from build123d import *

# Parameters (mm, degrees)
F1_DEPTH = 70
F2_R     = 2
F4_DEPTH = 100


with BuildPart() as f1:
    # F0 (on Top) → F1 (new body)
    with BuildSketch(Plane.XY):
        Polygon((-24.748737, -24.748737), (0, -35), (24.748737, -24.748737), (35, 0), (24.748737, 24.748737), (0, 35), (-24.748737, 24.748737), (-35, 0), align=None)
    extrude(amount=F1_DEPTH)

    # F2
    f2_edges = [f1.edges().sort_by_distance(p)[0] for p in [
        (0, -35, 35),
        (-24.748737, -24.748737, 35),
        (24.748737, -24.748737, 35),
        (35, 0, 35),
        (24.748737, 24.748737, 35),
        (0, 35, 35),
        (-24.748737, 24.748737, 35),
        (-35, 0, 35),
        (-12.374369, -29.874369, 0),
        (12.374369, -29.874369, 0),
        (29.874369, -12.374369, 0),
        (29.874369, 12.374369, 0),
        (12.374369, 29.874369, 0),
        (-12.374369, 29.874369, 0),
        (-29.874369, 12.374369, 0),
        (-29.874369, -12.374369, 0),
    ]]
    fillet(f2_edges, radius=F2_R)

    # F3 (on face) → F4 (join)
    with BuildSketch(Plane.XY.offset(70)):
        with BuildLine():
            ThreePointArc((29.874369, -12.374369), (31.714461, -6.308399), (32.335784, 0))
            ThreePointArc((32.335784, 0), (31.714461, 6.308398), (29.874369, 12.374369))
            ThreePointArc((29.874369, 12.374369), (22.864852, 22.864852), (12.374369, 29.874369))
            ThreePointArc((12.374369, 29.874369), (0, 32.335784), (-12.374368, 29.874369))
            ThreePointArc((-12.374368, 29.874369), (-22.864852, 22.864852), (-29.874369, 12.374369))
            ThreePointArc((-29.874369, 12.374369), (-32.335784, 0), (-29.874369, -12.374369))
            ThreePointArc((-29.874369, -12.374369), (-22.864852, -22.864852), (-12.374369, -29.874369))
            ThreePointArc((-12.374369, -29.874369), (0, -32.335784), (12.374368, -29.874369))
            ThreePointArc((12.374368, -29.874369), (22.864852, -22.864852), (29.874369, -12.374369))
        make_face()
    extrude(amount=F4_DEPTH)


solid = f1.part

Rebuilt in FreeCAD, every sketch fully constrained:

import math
import FreeCAD as App
import Part
import Sketcher
Q = App.Units.Quantity


def edges_at(feature, points):
    """Names of the edges that pass closest to the given points."""
    edges = feature.Shape.Edges
    near = lambda p: min(range(len(edges)), key=lambda i: edges[i].distToShape(Part.Vertex(*p))[0])
    return sorted({f"Edge{near(p) + 1}" for p in points})


def add_polygon(sketch, points):
    """Adds a closed chain of lines whose ends are joined by coincident constraints."""
    first, n = sketch.GeometryCount, len(points)
    for a, b in zip(points, points[1:] + points[:1]):
        sketch.addGeometry(Part.LineSegment(App.Vector(*a, 0), App.Vector(*b, 0)), False)
    for i in range(n):
        sketch.addConstraint(Sketcher.Constraint("Coincident", first + i, 2, first + (i + 1) % n, 1))

doc = App.newDocument("Part")
body = doc.addObject("PartDesign::Body", "Body")

sketch1 = body.newObject("Sketcher::SketchObject", "Sketch")
sketch1.AttachmentSupport = (doc.getObject("XY_Plane"), [""])
sketch1.MapMode = "FlatFace"
add_polygon(sketch1, [(-24.748737, -24.748737), (0, -35), (24.748737, -24.748737), (35, 0), (24.748737, 24.748737), (0, 35), (-24.748737, 24.748737), (-35, 0)])
sketch1.addConstraint([
    Sketcher.Constraint("Symmetric", 0, 2, 4, 2, -1, 1),
    Sketcher.Constraint("Symmetric", 1, 2, 5, 2, -1, 1),
    Sketcher.Constraint("Symmetric", 2, 2, 6, 2, -1, 1),
    Sketcher.Constraint("Symmetric", 3, 2, 7, 2, -1, 1),
    Sketcher.Constraint("Symmetric", 3, 2, 5, 2, -2),
    Sketcher.Constraint("PointOnObject", 0, 2, -2),
    Sketcher.Constraint("PointOnObject", 2, 2, -1),
    Sketcher.Constraint("Perpendicular", 0, 2),
    Sketcher.Constraint("Equal", 1, 2),
    Sketcher.Constraint("DistanceY", 0, 2, -1, 1, 35.0),
    Sketcher.Constraint("Angle", 0, Q("-22.500001 deg")),
])
pad1 = body.newObject("PartDesign::Pad", "Pad")
pad1.Profile = sketch1
pad1.Length = 70
doc.recompute()

fillet = body.newObject("PartDesign::Fillet", "Fillet")
fillet.Base = (pad1, edges_at(pad1, [
    (0, -35, 35),
    (-24.749, -24.749, 35),
    (24.749, -24.749, 35),
    (35, 0, 35),
    (24.749, 24.749, 35),
    (0, 35, 35),
    (-24.749, 24.749, 35),
    (-35, 0, 35),
    (-12.374, -29.874, 0),
    (12.374, -29.874, 0),
    (29.874, -12.374, 0),
    (29.874, 12.374, 0),
    (12.374, 29.874, 0),
    (-12.374, 29.874, 0),
    (-29.874, 12.374, 0),
    (-29.874, -12.374, 0),
]))
fillet.Radius = 2

sketch2 = body.newObject("Sketcher::SketchObject", "Sketch001")
sketch2.AttachmentSupport = (doc.getObject("XY_Plane"), [""])
sketch2.MapMode = "FlatFace"
sketch2.AttachmentOffset = App.Placement(App.Vector(0, 0, 70), App.Rotation())
sketch2.addGeometry([
    Part.ArcOfCircle(Part.Circle(App.Vector(0.000004, -0.000001, 0), App.Vector(0, 0, 1), 32.33578), math.radians(-22.500002), math.radians(0.000002)),
    Part.ArcOfCircle(Part.Circle(App.Vector(-0.000006, -0.000001, 0), App.Vector(0, 0, 1), 32.33579), math.radians(0.000002), math.radians(22.499998)),
    Part.ArcOfCircle(Part.Circle(App.Vector(-0.000002, -0.000002, 0), App.Vector(0, 0, 1), 32.335787), math.radians(22.500003), math.radians(67.499997)),
    Part.ArcOfCircle(Part.Circle(App.Vector(0, 0.000002, 0), App.Vector(0, 0, 1), 32.335782), math.radians(67.499999), math.radians(112.500001)),
    Part.ArcOfCircle(Part.Circle(App.Vector(0, -0.000001, 0), App.Vector(0, 0, 1), 32.335785), math.radians(112.499999), math.radians(157.499998)),
    Part.ArcOfCircle(Part.Circle(App.Vector(0.000001, 0, 0), App.Vector(0, 0, 1), 32.335785), math.radians(157.5), math.radians(202.5)),
    Part.ArcOfCircle(Part.Circle(App.Vector(0.000002, 0.000002, 0), App.Vector(0, 0, 1), 32.335787), math.radians(-157.499997), math.radians(-112.500003)),
    Part.ArcOfCircle(Part.Circle(App.Vector(0, -0.000002, 0), App.Vector(0, 0, 1), 32.335782), math.radians(-112.500001), math.radians(-67.499999)),
    Part.ArcOfCircle(Part.Circle(App.Vector(0, 0.000001, 0), App.Vector(0, 0, 1), 32.335785), math.radians(-67.500001), math.radians(-22.500002)),
], False)
sketch2.addConstraint([
    Sketcher.Constraint("Tangent", 0, 2, 1, 1),
    Sketcher.Constraint("Tangent", 1, 2, 2, 1),
    Sketcher.Constraint("Tangent", 2, 2, 3, 1),
    Sketcher.Constraint("Tangent", 3, 2, 4, 1),
    Sketcher.Constraint("Tangent", 4, 2, 5, 1),
    Sketcher.Constraint("Tangent", 5, 2, 6, 1),
    Sketcher.Constraint("Tangent", 6, 2, 7, 1),
    Sketcher.Constraint("Tangent", 7, 2, 8, 1),
    Sketcher.Constraint("Tangent", 8, 2, 0, 1),
    Sketcher.Constraint("Coincident", 0, 3, -1, 1),
    Sketcher.Constraint("Coincident", 2, 3, -1, 1),
    Sketcher.Constraint("Coincident", 4, 3, -1, 1),
    Sketcher.Constraint("Coincident", 6, 3, -1, 1),
    Sketcher.Constraint("PointOnObject", 0, 2, -1),
    Sketcher.Constraint("Horizontal", 2, 2, 3, 2),
    Sketcher.Constraint("Horizontal", 1, 2, 4, 2),
    Sketcher.Constraint("Horizontal", 6, 2, 7, 2),
    Sketcher.Constraint("Horizontal", 5, 2, 8, 2),
    Sketcher.Constraint("Vertical", 4, 2, 5, 2),
    Sketcher.Constraint("Vertical", 3, 2, 6, 2),
    Sketcher.Constraint("DistanceX", 2, 2, 1, 2, 17.5),
    Sketcher.Constraint("DistanceY", 1, 2, 2, 2, 17.5),
    Sketcher.Constraint("Radius", 0, 32.33578),
])
pad2 = body.newObject("PartDesign::Pad", "Pad001")
pad2.Profile = sketch2
pad2.Length = 100

doc.recompute()
